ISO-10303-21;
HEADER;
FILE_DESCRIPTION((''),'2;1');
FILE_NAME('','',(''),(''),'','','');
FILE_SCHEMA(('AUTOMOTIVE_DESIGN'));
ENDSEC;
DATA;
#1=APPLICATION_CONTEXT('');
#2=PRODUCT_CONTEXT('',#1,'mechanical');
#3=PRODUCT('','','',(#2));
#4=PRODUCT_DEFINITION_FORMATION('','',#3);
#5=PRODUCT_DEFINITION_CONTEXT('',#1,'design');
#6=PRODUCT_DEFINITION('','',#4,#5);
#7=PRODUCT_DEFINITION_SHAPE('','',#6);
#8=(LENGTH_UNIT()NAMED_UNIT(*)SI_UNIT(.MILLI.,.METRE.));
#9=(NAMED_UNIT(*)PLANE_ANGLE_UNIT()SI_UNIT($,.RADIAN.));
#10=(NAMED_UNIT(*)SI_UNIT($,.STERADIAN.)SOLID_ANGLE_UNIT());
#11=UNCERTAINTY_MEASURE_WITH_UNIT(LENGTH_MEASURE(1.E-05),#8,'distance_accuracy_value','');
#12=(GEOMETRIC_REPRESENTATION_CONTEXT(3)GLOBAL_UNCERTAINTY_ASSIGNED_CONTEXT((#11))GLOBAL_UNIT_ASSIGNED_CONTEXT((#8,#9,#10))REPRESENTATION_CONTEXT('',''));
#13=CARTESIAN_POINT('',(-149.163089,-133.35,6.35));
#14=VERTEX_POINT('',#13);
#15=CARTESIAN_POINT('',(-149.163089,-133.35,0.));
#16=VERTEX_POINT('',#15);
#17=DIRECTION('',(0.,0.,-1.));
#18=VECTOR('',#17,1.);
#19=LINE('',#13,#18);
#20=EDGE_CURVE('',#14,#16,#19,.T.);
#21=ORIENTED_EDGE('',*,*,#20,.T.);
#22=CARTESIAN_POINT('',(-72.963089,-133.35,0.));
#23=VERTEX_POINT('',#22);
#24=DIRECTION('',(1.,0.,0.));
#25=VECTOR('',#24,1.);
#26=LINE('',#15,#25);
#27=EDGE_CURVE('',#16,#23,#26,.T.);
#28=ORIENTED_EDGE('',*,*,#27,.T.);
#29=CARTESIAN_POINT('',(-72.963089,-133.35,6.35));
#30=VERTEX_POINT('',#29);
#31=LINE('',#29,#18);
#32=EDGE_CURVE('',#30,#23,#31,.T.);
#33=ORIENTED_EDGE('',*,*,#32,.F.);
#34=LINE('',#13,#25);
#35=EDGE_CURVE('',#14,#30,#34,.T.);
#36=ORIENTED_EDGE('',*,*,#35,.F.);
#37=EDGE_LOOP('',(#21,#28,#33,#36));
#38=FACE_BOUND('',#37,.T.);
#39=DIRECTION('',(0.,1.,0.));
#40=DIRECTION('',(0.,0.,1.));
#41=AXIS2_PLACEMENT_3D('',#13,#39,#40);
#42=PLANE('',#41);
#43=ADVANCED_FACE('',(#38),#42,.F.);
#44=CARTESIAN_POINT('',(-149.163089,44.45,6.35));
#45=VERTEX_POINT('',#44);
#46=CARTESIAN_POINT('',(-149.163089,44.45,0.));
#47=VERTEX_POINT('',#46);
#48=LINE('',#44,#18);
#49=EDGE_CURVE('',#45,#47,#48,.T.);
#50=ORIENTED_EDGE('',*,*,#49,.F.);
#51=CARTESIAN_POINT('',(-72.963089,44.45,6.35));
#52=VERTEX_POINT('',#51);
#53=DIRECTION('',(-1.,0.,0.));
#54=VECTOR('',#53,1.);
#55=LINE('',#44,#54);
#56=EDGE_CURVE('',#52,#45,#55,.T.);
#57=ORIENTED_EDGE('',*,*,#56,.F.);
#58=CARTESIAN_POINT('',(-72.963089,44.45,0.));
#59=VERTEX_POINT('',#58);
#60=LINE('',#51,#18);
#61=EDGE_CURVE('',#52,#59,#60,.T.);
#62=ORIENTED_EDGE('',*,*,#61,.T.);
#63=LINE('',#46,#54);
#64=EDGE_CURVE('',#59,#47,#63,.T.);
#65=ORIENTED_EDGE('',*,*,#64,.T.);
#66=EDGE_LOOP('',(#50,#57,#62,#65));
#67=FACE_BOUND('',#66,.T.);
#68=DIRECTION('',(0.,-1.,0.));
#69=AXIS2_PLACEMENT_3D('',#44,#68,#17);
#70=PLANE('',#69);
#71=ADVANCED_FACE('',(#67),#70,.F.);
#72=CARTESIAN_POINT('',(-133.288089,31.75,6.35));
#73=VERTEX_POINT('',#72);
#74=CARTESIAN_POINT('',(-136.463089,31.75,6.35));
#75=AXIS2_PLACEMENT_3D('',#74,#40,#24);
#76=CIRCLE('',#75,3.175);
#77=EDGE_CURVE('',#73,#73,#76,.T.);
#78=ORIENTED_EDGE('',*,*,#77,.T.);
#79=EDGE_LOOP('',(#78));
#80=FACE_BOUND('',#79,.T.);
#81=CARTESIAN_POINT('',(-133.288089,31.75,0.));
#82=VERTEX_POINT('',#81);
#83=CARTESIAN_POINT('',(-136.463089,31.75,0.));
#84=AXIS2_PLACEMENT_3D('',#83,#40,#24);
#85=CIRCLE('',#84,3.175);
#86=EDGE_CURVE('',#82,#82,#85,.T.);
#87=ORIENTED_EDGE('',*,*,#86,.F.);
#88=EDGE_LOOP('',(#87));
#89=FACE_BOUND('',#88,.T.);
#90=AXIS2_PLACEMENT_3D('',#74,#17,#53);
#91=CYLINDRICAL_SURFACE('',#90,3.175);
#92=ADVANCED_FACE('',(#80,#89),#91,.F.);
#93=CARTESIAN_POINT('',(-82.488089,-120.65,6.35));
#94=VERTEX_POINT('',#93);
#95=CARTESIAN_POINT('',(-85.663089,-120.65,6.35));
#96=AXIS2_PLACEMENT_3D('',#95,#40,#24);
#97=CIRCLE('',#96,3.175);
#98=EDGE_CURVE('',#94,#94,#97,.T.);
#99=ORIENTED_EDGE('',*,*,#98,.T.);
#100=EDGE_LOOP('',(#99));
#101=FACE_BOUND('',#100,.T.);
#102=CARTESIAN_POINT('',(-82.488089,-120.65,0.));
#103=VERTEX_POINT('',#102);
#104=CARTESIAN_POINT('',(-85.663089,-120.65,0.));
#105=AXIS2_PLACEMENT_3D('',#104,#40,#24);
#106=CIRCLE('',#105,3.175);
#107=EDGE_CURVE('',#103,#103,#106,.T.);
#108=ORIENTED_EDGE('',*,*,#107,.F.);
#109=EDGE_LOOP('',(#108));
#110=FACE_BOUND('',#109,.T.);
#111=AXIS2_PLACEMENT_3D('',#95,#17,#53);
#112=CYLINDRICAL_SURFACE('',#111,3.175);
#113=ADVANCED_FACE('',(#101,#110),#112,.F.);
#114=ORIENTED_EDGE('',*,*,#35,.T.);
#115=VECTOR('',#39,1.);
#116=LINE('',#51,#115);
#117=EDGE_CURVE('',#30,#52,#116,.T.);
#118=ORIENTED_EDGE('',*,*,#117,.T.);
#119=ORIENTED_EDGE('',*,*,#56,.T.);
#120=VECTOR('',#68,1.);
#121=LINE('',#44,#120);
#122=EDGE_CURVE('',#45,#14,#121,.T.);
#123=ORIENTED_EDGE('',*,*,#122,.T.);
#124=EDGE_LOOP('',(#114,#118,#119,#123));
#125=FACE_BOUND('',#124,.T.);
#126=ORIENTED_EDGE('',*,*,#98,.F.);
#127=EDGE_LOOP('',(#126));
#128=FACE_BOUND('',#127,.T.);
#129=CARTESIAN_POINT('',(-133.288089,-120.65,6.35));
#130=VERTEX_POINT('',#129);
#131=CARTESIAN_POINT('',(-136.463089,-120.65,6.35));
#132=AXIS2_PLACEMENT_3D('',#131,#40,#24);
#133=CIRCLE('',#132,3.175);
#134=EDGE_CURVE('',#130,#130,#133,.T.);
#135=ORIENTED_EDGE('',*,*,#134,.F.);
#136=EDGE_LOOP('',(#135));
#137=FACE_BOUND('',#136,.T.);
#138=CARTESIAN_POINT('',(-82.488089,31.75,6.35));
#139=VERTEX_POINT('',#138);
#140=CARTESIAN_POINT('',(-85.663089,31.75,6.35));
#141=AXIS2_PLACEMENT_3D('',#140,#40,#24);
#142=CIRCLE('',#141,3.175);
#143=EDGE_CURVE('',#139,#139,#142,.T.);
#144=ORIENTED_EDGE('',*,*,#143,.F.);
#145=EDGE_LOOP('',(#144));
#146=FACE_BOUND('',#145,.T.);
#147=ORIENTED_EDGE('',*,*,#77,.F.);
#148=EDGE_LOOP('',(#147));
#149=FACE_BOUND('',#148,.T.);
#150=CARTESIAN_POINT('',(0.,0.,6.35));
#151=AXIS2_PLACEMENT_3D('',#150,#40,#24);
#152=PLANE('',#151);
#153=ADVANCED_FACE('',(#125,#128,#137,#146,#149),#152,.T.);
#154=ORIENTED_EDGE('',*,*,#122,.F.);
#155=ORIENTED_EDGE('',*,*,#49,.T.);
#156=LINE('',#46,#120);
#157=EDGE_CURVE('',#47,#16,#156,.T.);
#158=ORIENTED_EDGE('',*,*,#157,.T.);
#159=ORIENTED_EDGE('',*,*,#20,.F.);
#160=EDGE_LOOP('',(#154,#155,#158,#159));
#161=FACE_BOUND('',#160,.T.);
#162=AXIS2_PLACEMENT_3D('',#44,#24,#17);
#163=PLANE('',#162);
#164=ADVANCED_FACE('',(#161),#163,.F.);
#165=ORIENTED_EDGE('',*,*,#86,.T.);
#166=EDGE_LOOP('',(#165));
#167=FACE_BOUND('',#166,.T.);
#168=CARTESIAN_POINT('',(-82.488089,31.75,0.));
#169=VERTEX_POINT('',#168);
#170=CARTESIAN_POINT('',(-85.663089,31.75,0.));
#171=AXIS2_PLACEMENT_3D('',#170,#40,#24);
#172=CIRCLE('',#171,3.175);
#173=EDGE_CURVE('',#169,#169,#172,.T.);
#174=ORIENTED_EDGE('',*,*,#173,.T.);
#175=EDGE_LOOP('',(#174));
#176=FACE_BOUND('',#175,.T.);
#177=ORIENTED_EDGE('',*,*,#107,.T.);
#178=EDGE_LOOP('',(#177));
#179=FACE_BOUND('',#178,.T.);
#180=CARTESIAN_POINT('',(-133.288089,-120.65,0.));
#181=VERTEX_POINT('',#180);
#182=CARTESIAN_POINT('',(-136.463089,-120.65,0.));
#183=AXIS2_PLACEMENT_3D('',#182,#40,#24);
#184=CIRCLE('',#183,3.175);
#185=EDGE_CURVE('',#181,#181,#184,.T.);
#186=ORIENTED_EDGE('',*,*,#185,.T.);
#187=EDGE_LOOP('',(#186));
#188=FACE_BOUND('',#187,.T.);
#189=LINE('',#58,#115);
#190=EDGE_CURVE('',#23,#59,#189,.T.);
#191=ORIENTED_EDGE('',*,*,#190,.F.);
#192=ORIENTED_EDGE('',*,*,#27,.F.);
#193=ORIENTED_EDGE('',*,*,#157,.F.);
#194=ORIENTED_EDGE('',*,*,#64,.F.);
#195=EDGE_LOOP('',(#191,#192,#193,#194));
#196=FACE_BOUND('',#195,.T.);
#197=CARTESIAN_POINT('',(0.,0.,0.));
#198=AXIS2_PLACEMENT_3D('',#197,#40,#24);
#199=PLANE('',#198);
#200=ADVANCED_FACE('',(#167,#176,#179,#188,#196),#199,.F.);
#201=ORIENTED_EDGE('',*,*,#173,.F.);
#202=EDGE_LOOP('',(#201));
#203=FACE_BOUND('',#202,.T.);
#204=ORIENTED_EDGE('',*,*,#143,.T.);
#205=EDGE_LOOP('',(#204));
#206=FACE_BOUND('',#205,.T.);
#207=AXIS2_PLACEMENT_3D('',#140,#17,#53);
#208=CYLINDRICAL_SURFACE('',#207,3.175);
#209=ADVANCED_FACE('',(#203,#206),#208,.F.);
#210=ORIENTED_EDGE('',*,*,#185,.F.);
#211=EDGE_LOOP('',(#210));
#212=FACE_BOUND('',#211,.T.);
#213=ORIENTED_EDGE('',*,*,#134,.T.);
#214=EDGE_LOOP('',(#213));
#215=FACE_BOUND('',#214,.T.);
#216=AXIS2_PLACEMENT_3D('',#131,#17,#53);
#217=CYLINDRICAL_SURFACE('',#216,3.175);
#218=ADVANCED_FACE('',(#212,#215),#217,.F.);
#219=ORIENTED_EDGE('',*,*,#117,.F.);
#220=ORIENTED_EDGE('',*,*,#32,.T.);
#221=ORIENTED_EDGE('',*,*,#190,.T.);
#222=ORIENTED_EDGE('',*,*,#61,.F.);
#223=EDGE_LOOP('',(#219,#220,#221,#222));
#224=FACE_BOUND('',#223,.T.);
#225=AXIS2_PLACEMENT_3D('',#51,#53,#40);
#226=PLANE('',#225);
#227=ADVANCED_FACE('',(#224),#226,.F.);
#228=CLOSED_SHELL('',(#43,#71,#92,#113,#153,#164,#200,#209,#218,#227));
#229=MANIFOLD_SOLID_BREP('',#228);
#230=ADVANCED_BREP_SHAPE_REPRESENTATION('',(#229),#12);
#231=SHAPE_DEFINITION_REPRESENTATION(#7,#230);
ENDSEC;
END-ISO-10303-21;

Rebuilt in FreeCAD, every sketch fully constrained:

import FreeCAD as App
import Part
import Sketcher

V = App.Vector
Q = App.Units.Quantity

doc = App.newDocument("Part")
body = doc.addObject("PartDesign::Body", "Body")

sketch1 = body.newObject("Sketcher::SketchObject", "Sketch")
sketch1.AttachmentSupport = (doc.getObject("XY_Plane"), [""])
sketch1.MapMode = "FlatFace"
sketch1.addGeometry([
    Part.LineSegment(V(-149.2, 44.5, 0), V(-149.2, -133.3, 0)),
    Part.LineSegment(V(-149.2, -133.3, 0), V(-73, -133.3, 0)),
    Part.LineSegment(V(-73, -133.3, 0), V(-73, 44.5, 0)),
    Part.LineSegment(V(-73, 44.5, 0), V(-149.2, 44.5, 0)),
    Part.Circle(V(-136.5, -120.7, 0), V(0, 0, 1), 3.2),
    Part.Circle(V(-85.7, -120.7, 0), V(0, 0, 1), 3.2),
    Part.Circle(V(-136.5, 31.8, 0), V(0, 0, 1), 3.2),
    Part.Circle(V(-85.7, 31.8, 0), V(0, 0, 1), 3.2),
], False)
sketch1.addConstraint([
    Sketcher.Constraint("Coincident", 0, 2, 1, 1),
    Sketcher.Constraint("Coincident", 1, 2, 2, 1),
    Sketcher.Constraint("Coincident", 2, 2, 3, 1),
    Sketcher.Constraint("Coincident", 3, 2, 0, 1),
    Sketcher.Constraint("Vertical", 0),
    Sketcher.Constraint("Horizontal", 1),
    Sketcher.Constraint("Vertical", 2),
    Sketcher.Constraint("Horizontal", 3),
    Sketcher.Constraint("Equal", 4, 5),
    Sketcher.Constraint("Equal", 5, 6),
    Sketcher.Constraint("Equal", 6, 7),
    Sketcher.Constraint("Horizontal", 4, 3, 5, 3),
    Sketcher.Constraint("Horizontal", 6, 3, 7, 3),
    Sketcher.Constraint("Vertical", 4, 3, 6, 3),
    Sketcher.Constraint("Vertical", 5, 3, 7, 3),
    Sketcher.Constraint("Diameter", 4, Q("0.25 in")),
    Sketcher.Constraint("DistanceX", 1, 1, 1, 2, Q("3 in")),
    Sketcher.Constraint("DistanceY", 0, 2, 0, 1, Q("7 in")),
    Sketcher.Constraint("DistanceX", 4, 3, 5, 3, Q("2 in")),
    Sketcher.Constraint("DistanceY", 4, 3, 6, 3, Q("6 in")),
    Sketcher.Constraint("DistanceX", 0, 2, 4, 3, Q("0.5 in")),
    Sketcher.Constraint("DistanceY", 0, 2, 4, 3, Q("0.5 in")),
    Sketcher.Constraint("DistanceY", 4, 3, -1, 1, Q("4.75 in")),
    Sketcher.Constraint("DistanceX", 4, 3, -1, 1, Q("136.463089 mm")),
])
pad1 = body.newObject("PartDesign::Pad", "Pad")
pad1.Profile = sketch1
pad1.Length = Q("0.25 in")

doc.recompute()
